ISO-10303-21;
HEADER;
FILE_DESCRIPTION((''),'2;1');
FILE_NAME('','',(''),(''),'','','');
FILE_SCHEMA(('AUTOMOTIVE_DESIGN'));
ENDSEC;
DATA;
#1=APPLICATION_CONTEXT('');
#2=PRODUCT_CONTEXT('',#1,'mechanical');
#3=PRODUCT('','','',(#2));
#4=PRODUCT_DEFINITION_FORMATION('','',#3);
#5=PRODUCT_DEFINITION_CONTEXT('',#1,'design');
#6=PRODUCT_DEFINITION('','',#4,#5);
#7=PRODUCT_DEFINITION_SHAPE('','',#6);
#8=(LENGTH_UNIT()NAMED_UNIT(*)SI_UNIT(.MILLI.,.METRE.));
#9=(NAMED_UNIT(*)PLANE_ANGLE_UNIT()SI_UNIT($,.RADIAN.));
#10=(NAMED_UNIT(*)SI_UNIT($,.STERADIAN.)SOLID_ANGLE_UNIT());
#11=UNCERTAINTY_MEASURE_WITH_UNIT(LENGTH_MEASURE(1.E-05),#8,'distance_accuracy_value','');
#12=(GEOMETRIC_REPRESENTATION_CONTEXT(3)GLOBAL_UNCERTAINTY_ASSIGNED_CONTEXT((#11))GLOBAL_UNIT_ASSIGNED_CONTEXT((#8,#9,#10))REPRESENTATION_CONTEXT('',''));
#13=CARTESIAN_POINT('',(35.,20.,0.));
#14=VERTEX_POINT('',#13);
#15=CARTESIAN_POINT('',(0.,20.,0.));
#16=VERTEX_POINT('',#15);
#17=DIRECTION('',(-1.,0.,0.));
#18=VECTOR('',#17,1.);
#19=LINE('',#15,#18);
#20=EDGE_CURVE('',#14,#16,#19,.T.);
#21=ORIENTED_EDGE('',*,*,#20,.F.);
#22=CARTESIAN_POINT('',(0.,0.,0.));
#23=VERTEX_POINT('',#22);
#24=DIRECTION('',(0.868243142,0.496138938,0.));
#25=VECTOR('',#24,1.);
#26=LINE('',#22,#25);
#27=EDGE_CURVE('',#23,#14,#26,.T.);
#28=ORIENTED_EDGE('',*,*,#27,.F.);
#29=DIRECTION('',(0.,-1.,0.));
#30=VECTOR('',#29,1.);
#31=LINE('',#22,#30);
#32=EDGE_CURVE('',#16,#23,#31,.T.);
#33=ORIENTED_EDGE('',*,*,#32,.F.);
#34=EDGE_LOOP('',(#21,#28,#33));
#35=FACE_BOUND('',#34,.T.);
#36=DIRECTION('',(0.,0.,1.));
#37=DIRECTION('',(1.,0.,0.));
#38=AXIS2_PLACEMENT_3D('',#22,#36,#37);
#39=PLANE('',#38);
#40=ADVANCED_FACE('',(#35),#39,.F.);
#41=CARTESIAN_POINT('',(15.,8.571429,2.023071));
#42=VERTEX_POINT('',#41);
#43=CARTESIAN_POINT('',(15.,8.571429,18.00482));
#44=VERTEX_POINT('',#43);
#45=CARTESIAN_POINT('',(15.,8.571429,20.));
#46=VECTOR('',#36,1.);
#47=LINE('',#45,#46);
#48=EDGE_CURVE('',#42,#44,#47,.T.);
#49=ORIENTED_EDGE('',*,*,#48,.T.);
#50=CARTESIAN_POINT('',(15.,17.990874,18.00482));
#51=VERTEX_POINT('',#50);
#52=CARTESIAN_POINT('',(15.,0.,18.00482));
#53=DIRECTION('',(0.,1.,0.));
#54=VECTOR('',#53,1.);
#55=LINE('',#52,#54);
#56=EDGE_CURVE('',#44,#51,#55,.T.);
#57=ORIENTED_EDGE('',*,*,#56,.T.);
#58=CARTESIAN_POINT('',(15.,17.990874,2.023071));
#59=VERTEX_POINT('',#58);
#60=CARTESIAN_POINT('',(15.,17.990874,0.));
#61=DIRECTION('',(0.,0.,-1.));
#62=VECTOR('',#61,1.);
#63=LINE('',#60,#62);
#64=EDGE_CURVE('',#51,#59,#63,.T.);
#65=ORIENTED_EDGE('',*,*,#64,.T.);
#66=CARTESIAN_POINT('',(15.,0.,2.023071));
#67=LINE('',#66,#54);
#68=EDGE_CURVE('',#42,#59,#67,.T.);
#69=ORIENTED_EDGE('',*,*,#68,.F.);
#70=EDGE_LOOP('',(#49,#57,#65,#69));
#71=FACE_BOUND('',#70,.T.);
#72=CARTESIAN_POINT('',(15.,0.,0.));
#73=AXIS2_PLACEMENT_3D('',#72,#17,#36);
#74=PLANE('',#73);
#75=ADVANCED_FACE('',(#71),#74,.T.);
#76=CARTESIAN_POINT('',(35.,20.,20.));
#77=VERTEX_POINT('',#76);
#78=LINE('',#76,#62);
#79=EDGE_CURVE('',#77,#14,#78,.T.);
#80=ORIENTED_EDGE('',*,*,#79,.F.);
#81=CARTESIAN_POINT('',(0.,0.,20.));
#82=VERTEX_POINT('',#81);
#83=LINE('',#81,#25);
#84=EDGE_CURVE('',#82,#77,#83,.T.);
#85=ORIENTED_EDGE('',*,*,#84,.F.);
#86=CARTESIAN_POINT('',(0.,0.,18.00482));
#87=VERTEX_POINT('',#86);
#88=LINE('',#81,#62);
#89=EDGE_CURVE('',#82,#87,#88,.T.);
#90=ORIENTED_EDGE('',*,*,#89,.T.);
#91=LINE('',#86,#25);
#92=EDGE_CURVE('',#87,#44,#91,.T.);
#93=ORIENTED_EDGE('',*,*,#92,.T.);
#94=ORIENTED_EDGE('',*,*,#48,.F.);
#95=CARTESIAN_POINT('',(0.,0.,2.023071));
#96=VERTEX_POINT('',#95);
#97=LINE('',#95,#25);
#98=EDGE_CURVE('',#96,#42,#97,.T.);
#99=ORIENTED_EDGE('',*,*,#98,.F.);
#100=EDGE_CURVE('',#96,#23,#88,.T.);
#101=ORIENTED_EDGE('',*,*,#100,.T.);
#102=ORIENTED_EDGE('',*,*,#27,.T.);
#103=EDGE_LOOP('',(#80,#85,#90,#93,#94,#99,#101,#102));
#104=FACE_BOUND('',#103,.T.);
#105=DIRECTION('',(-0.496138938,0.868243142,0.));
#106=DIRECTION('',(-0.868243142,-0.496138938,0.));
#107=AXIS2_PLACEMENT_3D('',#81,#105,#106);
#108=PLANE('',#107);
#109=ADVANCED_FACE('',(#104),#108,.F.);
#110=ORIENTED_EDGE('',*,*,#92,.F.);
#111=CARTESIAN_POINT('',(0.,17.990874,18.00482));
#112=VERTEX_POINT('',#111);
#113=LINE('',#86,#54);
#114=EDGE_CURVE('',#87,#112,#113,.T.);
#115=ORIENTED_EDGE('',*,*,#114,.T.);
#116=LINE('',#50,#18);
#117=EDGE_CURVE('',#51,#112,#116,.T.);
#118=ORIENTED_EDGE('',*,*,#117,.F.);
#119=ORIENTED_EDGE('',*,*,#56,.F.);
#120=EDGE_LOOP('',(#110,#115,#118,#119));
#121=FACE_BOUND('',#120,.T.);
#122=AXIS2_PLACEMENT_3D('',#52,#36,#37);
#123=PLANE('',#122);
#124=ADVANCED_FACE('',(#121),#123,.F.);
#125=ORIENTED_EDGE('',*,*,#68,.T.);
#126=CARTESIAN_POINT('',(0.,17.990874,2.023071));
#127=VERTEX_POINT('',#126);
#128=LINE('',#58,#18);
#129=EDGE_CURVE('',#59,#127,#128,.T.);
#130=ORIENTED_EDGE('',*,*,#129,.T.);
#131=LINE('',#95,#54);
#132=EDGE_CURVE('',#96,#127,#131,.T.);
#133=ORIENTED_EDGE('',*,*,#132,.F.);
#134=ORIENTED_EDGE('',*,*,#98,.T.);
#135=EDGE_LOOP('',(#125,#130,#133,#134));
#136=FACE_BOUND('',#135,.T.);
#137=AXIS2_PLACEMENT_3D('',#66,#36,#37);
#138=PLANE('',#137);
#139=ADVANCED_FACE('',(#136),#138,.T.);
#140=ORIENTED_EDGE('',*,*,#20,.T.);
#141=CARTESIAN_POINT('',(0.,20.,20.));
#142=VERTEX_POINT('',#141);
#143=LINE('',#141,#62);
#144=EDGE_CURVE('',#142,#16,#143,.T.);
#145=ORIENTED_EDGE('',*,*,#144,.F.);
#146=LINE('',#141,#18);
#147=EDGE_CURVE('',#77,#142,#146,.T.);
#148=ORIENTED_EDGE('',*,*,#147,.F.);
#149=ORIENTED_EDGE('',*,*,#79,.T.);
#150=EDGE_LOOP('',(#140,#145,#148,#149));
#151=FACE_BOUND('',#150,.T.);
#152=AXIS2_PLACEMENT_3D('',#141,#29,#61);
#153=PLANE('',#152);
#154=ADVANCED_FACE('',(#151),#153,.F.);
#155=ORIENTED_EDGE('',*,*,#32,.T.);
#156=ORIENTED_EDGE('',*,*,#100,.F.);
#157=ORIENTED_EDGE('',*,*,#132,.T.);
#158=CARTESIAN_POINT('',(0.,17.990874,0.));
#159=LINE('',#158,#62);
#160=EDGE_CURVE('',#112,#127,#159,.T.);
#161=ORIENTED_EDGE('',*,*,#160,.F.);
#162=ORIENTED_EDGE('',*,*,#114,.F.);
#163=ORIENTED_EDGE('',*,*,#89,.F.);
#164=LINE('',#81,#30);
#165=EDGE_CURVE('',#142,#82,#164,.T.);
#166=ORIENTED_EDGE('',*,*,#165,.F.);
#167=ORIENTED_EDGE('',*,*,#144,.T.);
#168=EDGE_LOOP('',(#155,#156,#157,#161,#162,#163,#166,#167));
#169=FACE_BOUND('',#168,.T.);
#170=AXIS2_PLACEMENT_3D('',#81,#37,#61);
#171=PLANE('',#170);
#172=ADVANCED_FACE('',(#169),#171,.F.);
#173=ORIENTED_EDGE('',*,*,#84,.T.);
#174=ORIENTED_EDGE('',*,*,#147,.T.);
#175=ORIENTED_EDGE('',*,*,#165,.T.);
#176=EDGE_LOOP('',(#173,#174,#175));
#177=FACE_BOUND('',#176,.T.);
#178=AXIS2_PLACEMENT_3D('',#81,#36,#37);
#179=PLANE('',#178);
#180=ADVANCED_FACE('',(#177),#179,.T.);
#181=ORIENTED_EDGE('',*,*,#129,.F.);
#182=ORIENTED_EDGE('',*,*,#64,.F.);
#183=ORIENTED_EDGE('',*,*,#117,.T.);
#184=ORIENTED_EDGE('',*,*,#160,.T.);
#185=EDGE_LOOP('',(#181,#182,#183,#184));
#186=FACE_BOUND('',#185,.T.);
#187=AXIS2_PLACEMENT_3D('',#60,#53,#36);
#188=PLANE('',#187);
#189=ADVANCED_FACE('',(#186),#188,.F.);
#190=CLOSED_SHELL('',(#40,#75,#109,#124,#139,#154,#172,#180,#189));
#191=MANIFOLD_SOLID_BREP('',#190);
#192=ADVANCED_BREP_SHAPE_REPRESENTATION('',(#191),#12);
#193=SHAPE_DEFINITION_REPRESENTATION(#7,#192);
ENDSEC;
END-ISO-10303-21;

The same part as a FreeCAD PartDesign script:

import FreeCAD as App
import Part
import Sketcher

V = App.Vector
Q = App.Units.Quantity


def add_polygon(sketch, points):
    """Adds a closed chain of lines whose ends are joined by coincident constraints."""
    first, n = sketch.GeometryCount, len(points)
    for a, b in zip(points, points[1:] + points[:1]):
        sketch.addGeometry(Part.LineSegment(App.Vector(*a, 0), App.Vector(*b, 0)), False)
    for i in range(n):
        sketch.addConstraint(Sketcher.Constraint("Coincident", first + i, 2, first + (i + 1) % n, 1))

doc = App.newDocument("Part")
body = doc.addObject("PartDesign::Body", "Body")

# Sketch on XY plane
sketch1 = body.newObject("Sketcher::SketchObject", "Sketch")
sketch1.AttachmentSupport = (doc.getObject("XY_Plane"), [""])
sketch1.MapMode = "FlatFace"
add_polygon(sketch1, [(0, 20), (0, 0), (35, 20)])  # lines 0-2
sketch1.addConstraint(Sketcher.Constraint("Vertical", 0))
sketch1.addConstraint(Sketcher.Constraint("Horizontal", 2))
sketch1.addConstraint(Sketcher.Constraint("Coincident", 0, 2, -1, 1))
sketch1.addConstraint(Sketcher.Constraint("DistanceX", 2, 2, 2, 1, Q("35 mm")))
sketch1.addConstraint(Sketcher.Constraint("DistanceY", 0, 2, 0, 1, Q("20 mm")))
pad1 = body.newObject("PartDesign::Pad", "Pad")
pad1.Profile = sketch1
pad1.Length = 20

# Sketch on YZ plane
sketch2 = body.newObject("Sketcher::SketchObject", "Sketch001")
sketch2.AttachmentSupport = (doc.getObject("YZ_Plane"), [""])
sketch2.MapMode = "FlatFace"
add_polygon(sketch2, [(18, 2), (0, 2), (0, 18), (18, 18)])  # lines 0-3
sketch2.addConstraint(Sketcher.Constraint("Horizontal", 0))
sketch2.addConstraint(Sketcher.Constraint("Vertical", 1))
sketch2.addConstraint(Sketcher.Constraint("Horizontal", 2))
sketch2.addConstraint(Sketcher.Constraint("Vertical", 3))
sketch2.addConstraint(Sketcher.Constraint("PointOnObject", 0, 2, -2))
sketch2.addConstraint(Sketcher.Constraint("DistanceY", 1, 1, 1, 2, Q("15.981749 mm")))
sketch2.addConstraint(Sketcher.Constraint("DistanceX", 0, 2, 0, 1, Q("17.990874 mm")))
sketch2.addConstraint(Sketcher.Constraint("DistanceY", -1, 1, 0, 2, Q("2.023071 mm")))
pocket1 = body.newObject("PartDesign::Pocket", "Pocket")
pocket1.Profile = sketch2
pocket1.Length = 15
pocket1.Reversed = True

doc.recompute()
